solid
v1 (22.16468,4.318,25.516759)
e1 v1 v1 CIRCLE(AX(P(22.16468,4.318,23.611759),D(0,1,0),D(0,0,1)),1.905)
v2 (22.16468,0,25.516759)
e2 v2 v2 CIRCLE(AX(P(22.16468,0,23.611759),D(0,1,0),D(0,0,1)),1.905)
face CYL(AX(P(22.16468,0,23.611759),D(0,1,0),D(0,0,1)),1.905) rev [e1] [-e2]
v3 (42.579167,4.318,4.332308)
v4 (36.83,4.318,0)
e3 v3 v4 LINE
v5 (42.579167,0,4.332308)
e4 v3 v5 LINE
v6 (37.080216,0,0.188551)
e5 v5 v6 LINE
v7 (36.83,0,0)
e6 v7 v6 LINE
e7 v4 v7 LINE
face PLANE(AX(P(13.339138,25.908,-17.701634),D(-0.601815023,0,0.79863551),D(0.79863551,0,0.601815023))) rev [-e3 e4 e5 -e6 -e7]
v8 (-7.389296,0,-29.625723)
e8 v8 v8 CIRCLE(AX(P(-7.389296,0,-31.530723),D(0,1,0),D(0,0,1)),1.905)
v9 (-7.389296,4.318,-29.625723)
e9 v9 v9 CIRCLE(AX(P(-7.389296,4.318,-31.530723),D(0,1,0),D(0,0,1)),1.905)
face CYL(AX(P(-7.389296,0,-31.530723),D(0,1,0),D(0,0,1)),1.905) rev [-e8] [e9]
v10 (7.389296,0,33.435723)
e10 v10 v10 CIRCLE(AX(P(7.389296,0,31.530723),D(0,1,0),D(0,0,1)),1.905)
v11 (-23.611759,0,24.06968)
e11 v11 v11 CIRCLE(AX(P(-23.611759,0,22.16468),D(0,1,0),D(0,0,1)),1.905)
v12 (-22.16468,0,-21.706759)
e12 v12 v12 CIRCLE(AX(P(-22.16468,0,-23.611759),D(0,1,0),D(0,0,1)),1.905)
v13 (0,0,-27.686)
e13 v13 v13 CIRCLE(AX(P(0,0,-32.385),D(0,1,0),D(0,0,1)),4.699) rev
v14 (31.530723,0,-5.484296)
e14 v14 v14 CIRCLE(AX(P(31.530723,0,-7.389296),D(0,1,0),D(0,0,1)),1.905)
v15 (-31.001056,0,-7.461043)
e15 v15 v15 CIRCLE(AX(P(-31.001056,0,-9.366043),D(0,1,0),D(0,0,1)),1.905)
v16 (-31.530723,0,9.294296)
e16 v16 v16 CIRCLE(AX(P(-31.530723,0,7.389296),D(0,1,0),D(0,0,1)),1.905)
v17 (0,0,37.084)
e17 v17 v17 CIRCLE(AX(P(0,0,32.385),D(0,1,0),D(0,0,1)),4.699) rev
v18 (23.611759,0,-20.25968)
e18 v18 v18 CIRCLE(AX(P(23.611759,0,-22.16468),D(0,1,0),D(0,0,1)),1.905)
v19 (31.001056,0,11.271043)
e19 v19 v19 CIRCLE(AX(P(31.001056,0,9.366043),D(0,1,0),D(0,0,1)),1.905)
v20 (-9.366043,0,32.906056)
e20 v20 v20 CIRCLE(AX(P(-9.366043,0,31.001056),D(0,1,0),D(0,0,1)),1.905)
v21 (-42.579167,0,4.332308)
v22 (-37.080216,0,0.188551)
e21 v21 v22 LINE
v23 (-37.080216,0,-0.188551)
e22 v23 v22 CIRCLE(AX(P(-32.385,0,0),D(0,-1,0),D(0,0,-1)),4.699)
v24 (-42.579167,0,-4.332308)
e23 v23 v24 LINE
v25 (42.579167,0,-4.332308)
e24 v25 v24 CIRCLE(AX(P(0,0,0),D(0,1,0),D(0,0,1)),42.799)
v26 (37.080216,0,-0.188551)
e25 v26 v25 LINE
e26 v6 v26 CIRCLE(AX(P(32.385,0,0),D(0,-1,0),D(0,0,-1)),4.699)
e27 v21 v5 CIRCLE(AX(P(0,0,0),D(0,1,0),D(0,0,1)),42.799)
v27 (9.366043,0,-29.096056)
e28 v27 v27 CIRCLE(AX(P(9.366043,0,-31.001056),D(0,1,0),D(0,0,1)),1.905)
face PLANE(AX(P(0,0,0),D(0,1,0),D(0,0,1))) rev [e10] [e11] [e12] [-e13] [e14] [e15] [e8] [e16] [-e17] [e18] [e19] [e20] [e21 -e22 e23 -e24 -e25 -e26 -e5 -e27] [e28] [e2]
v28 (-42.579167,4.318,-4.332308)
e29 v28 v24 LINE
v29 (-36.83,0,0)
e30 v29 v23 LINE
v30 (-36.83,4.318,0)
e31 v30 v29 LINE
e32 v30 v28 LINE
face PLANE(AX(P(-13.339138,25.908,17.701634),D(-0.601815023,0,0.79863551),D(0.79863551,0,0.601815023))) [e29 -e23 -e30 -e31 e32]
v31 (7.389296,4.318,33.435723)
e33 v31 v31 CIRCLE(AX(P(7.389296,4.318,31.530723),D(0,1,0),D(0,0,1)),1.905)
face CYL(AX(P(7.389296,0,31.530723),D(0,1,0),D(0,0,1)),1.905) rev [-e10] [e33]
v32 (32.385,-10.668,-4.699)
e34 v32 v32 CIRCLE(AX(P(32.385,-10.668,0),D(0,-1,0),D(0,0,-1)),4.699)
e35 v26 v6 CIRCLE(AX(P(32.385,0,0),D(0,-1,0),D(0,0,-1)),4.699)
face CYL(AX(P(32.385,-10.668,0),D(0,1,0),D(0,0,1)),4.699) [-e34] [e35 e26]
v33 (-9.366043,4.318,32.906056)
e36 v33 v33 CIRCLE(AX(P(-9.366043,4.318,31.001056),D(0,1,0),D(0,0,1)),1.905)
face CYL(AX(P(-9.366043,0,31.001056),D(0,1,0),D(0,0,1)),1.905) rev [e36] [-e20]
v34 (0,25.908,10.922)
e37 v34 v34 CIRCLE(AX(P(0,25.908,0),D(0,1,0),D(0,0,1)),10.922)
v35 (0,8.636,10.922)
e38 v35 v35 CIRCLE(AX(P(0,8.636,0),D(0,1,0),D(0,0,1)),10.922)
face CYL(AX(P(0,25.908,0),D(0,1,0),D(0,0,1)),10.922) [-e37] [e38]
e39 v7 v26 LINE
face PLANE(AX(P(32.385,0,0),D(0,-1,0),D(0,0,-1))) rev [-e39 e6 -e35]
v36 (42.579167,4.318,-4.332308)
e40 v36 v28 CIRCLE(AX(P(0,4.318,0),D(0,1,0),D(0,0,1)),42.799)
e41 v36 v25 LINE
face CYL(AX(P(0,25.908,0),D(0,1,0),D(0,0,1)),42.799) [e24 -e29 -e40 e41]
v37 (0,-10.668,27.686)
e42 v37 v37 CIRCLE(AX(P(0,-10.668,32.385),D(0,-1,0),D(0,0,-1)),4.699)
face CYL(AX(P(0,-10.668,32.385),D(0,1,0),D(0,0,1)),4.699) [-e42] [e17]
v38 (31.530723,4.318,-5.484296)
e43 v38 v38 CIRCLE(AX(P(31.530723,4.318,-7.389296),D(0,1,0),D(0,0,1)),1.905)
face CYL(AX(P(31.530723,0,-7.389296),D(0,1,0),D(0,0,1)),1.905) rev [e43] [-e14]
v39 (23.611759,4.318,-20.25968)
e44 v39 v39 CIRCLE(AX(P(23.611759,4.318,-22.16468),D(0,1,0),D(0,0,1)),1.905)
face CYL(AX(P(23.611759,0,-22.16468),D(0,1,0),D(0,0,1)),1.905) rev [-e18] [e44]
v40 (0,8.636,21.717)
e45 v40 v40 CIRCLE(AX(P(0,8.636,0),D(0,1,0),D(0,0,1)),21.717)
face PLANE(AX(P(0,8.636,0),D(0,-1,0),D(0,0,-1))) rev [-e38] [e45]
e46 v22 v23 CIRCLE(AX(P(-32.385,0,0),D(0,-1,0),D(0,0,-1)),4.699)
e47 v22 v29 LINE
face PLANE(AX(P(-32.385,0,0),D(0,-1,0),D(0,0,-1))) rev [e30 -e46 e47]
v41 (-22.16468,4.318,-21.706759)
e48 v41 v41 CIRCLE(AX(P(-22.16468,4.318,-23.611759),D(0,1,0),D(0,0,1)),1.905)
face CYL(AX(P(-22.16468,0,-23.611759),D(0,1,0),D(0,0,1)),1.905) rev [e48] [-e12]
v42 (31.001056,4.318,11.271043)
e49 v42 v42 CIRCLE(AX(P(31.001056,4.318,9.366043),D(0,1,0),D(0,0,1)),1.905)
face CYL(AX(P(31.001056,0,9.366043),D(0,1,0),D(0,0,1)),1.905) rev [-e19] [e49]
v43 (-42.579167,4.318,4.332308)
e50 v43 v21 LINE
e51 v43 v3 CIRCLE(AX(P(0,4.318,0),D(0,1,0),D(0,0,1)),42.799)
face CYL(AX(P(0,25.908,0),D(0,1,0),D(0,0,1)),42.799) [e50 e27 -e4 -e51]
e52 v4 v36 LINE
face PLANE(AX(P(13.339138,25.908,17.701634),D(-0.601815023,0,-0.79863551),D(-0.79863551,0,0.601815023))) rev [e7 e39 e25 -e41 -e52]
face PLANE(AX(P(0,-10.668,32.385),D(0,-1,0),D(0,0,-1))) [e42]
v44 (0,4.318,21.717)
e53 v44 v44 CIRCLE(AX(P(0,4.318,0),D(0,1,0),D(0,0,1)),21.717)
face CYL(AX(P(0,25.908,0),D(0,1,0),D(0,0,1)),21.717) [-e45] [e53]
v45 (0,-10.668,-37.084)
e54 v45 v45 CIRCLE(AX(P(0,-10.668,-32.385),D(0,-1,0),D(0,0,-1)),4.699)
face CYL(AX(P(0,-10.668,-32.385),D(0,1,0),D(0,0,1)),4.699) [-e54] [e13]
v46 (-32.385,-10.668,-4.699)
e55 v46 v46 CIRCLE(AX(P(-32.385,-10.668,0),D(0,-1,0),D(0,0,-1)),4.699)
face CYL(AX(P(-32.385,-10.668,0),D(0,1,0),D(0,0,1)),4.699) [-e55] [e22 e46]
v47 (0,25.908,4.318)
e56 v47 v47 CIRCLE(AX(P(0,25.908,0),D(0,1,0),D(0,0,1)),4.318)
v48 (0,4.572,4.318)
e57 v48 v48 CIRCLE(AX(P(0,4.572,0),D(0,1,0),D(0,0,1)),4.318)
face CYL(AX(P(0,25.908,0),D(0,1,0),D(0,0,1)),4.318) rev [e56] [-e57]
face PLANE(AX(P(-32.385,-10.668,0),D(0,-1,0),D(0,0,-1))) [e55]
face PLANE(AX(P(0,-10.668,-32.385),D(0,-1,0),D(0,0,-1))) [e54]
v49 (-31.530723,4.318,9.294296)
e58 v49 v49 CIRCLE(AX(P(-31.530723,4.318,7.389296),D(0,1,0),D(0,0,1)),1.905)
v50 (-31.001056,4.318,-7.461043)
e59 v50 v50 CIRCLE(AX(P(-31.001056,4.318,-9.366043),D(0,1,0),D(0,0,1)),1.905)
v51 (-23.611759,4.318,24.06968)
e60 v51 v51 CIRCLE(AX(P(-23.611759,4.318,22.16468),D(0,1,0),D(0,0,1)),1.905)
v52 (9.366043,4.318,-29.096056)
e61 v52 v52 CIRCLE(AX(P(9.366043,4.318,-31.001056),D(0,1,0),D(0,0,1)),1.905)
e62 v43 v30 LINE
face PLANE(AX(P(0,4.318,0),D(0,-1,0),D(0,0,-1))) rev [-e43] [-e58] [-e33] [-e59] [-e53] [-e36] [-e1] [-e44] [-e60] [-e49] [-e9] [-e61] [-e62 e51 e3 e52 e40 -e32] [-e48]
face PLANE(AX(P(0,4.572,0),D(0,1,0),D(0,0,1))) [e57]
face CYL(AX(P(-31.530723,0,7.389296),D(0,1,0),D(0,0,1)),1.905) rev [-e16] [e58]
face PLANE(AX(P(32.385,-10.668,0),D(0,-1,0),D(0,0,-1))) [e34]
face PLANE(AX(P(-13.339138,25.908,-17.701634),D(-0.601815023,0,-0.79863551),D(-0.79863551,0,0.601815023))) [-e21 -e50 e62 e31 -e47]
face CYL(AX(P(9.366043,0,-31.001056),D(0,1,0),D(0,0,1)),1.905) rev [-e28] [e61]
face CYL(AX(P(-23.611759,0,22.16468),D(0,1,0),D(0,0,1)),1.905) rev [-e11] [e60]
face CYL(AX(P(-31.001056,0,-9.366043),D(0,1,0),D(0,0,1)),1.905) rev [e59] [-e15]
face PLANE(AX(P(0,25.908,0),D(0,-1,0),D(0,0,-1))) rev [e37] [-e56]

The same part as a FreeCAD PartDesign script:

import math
import FreeCAD as App
import Part
import Sketcher

V = App.Vector
Q = App.Units.Quantity


def add_polygon(sketch, points):
    """Adds a closed chain of lines whose ends are joined by coincident constraints."""
    first, n = sketch.GeometryCount, len(points)
    for a, b in zip(points, points[1:] + points[:1]):
        sketch.addGeometry(Part.LineSegment(App.Vector(*a, 0), App.Vector(*b, 0)), False)
    for i in range(n):
        sketch.addConstraint(Sketcher.Constraint("Coincident", first + i, 2, first + (i + 1) % n, 1))

doc = App.newDocument("Part")
params = doc.addObject("Spreadsheet::Sheet", "Params")
for row, (alias, value) in enumerate([
    ("sketch1_width", "0.17 in"),
    ("sketch1_width2", "0.26 in"),
    ("sketch1_width3", "0.83 in"),
    ("sketch1_height", "0.18 in"),
    ("sketch1_height2", "0.84 in"),
    ("revolution_angle", "360 deg"),
    ("sketch2_diameter", "0.15 in"),
    ("pocket1_length", "0.17 in"),
    ("sketch3_radius", "1.685 in"),
    ("sketch4_diameter", "0.37 in"),
    ("pad1_length", "0.42 in"),
], start=1):
    params.set(f"A{row}", alias)
    params.set(f"B{row}", "=" + value)
    params.setAlias(f"B{row}", alias)

body = doc.addObject("PartDesign::Body", "Body")

# Sketch on XY plane
sketch1 = body.newObject("Sketcher::SketchObject", "Sketch")
sketch1.AttachmentSupport = (doc.getObject("XY_Plane"), [""])
sketch1.MapMode = "FlatFace"
add_polygon(sketch1, [(-42.8, 0), (0, 0), (0, 4.6), (-4.3, 4.6), (-4.3, 25.9), (-10.9, 25.9), (-10.9, 8.6), (-21.7, 8.6), (-21.7, 4.3), (-42.8, 4.3)])  # lines 0-9
sketch1.addConstraint(Sketcher.Constraint("Horizontal", 0))
sketch1.addConstraint(Sketcher.Constraint("Vertical", 1))
sketch1.addConstraint(Sketcher.Constraint("Horizontal", 2))
sketch1.addConstraint(Sketcher.Constraint("Vertical", 3))
sketch1.addConstraint(Sketcher.Constraint("Horizontal", 4))
sketch1.addConstraint(Sketcher.Constraint("Vertical", 5))
sketch1.addConstraint(Sketcher.Constraint("Horizontal", 6))
sketch1.addConstraint(Sketcher.Constraint("Vertical", 7))
sketch1.addConstraint(Sketcher.Constraint("Horizontal", 8))
sketch1.addConstraint(Sketcher.Constraint("Vertical", 9))
sketch1.addConstraint(Sketcher.Constraint("Coincident", 0, 2, -1, 1))
sketch1.addConstraint(Sketcher.Constraint("Equal", 2, 7))
sketch1.addConstraint(Sketcher.Constraint("Equal", 7, 9))
sketch1.addConstraint(Sketcher.Constraint("DistanceX", 2, 2, 2, 1, Q("0.17 in")))
sketch1.addConstraint(Sketcher.Constraint("DistanceX", 4, 2, 4, 1, Q("0.26 in")))
sketch1.addConstraint(Sketcher.Constraint("DistanceX", 8, 2, 8, 1, Q("0.83 in")))
sketch1.addConstraint(Sketcher.Constraint("DistanceY", 1, 1, 1, 2, Q("0.18 in")))
sketch1.addConstraint(Sketcher.Constraint("DistanceY", 3, 1, 3, 2, Q("0.84 in")))
sketch1.addConstraint(Sketcher.Constraint("DistanceX", 0, 1, 0, 2, Q("1.685 in")))
sketch1.setExpression("Constraints[23]", "Params.sketch1_width")
sketch1.setExpression("Constraints[24]", "Params.sketch1_width2")
sketch1.setExpression("Constraints[25]", "Params.sketch1_width3")
sketch1.setExpression("Constraints[26]", "Params.sketch1_height")
sketch1.setExpression("Constraints[27]", "Params.sketch1_height2")
revolution = body.newObject("PartDesign::Revolution", "Revolution")
revolution.Profile = sketch1
revolution.ReferenceAxis = (sketch1, ["V_Axis"])
revolution.setExpression("Angle", "Params.revolution_angle")

# Sketch on XZ plane
sketch2 = body.newObject("Sketcher::SketchObject", "Sketch001")
sketch2.AttachmentSupport = (doc.getObject("XZ_Plane"), [""])
sketch2.MapMode = "FlatFace"
sketch2.AttachmentOffset = App.Placement(V(0, 0, -0.17 * 25.4), App.Rotation())
sketch2.addGeometry(Part.Circle(V(-31, -9.4, 0), V(0, 0, 1), 1.9), False)
sketch2.addGeometry(Part.Circle(V(-22.2, -23.6, 0), V(0, 0, 1), 1.9), False)
sketch2.addGeometry(Part.Circle(V(-7.4, -31.5, 0), V(0, 0, 1), 1.9), False)
sketch2.addGeometry(Part.Circle(V(9.4, -31, 0), V(0, 0, 1), 1.9), False)
sketch2.addGeometry(Part.Circle(V(23.6, -22.2, 0), V(0, 0, 1), 1.9), False)
sketch2.addGeometry(Part.Circle(V(31.5, -7.4, 0), V(0, 0, 1), 1.9), False)
sketch2.addGeometry(Part.Circle(V(31, 9.4, 0), V(0, 0, 1), 1.9), False)
sketch2.addGeometry(Part.Circle(V(22.2, 23.6, 0), V(0, 0, 1), 1.9), False)
sketch2.addGeometry(Part.Circle(V(7.4, 31.5, 0), V(0, 0, 1), 1.9), False)
sketch2.addGeometry(Part.Circle(V(-9.4, 31, 0), V(0, 0, 1), 1.9), False)
sketch2.addGeometry(Part.Circle(V(-23.6, 22.2, 0), V(0, 0, 1), 1.9), False)
sketch2.addGeometry(Part.Circle(V(-31.5, 7.4, 0), V(0, 0, 1), 1.9), False)
sketch2.addConstraint(Sketcher.Constraint("Equal", 0, 1))
sketch2.addConstraint(Sketcher.Constraint("Equal", 1, 2))
sketch2.addConstraint(Sketcher.Constraint("Equal", 2, 3))
sketch2.addConstraint(Sketcher.Constraint("Equal", 3, 4))
sketch2.addConstraint(Sketcher.Constraint("Equal", 4, 5))
sketch2.addConstraint(Sketcher.Constraint("Equal", 5, 6))
sketch2.addConstraint(Sketcher.Constraint("Equal", 6, 7))
sketch2.addConstraint(Sketcher.Constraint("Equal", 7, 8))
sketch2.addConstraint(Sketcher.Constraint("Equal", 8, 9))
sketch2.addConstraint(Sketcher.Constraint("Equal", 9, 10))
sketch2.addConstraint(Sketcher.Constraint("Equal", 10, 11))
sketch2.addConstraint(Sketcher.Constraint("Symmetric", 0, 3, 6, 3, -1, 1))
sketch2.addConstraint(Sketcher.Constraint("Symmetric", 1, 3, 7, 3, -1, 1))
sketch2.addConstraint(Sketcher.Constraint("Symmetric", 2, 3, 8, 3, -1, 1))
sketch2.addConstraint(Sketcher.Constraint("Symmetric", 3, 3, 9, 3, -1, 1))
sketch2.addConstraint(Sketcher.Constraint("Symmetric", 4, 3, 10, 3, -1, 1))
sketch2.addConstraint(Sketcher.Constraint("Symmetric", 5, 3, 11, 3, -1, 1))
sketch2.addConstraint(Sketcher.Constraint("Diameter", 0, Q("0.15 in")))
sketch2.addConstraint(Sketcher.Constraint("DistanceX", 0, 3, 3, 3, 40.367099))
sketch2.addConstraint(Sketcher.Constraint("DistanceY", 3, 3, 6, 3, 40.367099))
sketch2.addConstraint(Sketcher.Constraint("DistanceX", 1, 3, -1, 1, 22.16468))
sketch2.addConstraint(Sketcher.Constraint("DistanceY", 1, 3, -1, 1, 23.611759))
sketch2.addConstraint(Sketcher.Constraint("DistanceX", -1, 1, 4, 3, 23.611759))
sketch2.addConstraint(Sketcher.Constraint("DistanceY", 4, 3, -1, 1, 22.16468))
sketch2.addConstraint(Sketcher.Constraint("DistanceX", 0, 3, 2, 3, 23.611759))
sketch2.addConstraint(Sketcher.Constraint("DistanceY", 2, 3, 0, 3, 22.16468))
sketch2.addConstraint(Sketcher.Constraint("DistanceX", 3, 3, 5, 3, 22.16468))
sketch2.addConstraint(Sketcher.Constraint("DistanceY", 3, 3, 5, 3, 23.611759))
sketch2.addConstraint(Sketcher.Constraint("DistanceX", 0, 3, -1, 1, 31.001056))
sketch2.addConstraint(Sketcher.Constraint("DistanceY", 0, 3, -1, 1, 9.366043))
sketch2.setExpression("Constraints[17]", "Params.sketch2_diameter")
pocket1 = body.newObject("PartDesign::Pocket", "Pocket")
pocket1.Profile = sketch2
pocket1.setExpression("Length", "Params.pocket1_length")
pocket1.Reversed = True

# Sketch on XZ plane
sketch3 = body.newObject("Sketcher::SketchObject", "Sketch002")
sketch3.AttachmentSupport = (doc.getObject("XZ_Plane"), [""])
sketch3.MapMode = "FlatFace"
sketch3.addGeometry(Part.ArcOfCircle(Part.Circle(V(0, 0, 0), V(0, 0, 1), 42.8), math.radians(0), math.radians(5.81)), False)
sketch3.addGeometry(Part.LineSegment(V(42.6, 4.3, 0), V(36.8, 0, 0)), False)
sketch3.addGeometry(Part.LineSegment(V(36.8, 0, 0), V(42.6, -4.3, 0)), False)
sketch3.addGeometry(Part.ArcOfCircle(Part.Circle(V(0, 0, 0), V(0, 0, 1), 42.8), math.radians(-5.81), math.radians(0)), False)
sketch3.addGeometry(Part.LineSegment(V(-36.8, 0, 0), V(-42.6, 4.3, 0)), False)
sketch3.addGeometry(Part.ArcOfCircle(Part.Circle(V(0, 0, 0), V(0, 0, 1), 42.8), math.radians(174.19), math.radians(185.81)), False)
sketch3.addGeometry(Part.LineSegment(V(-42.6, -4.3, 0), V(-36.8, 0, 0)), False)
sketch3.addConstraint(Sketcher.Constraint("Coincident", 0, 2, 1, 1))
sketch3.addConstraint(Sketcher.Constraint("Coincident", 1, 2, 2, 1))
sketch3.addConstraint(Sketcher.Constraint("Coincident", 2, 2, 3, 1))
sketch3.addConstraint(Sketcher.Constraint("Tangent", 3, 2, 0, 1))
sketch3.addConstraint(Sketcher.Constraint("Coincident", 4, 2, 5, 1))
sketch3.addConstraint(Sketcher.Constraint("Coincident", 5, 2, 6, 1))
sketch3.addConstraint(Sketcher.Constraint("Coincident", 6, 2, 4, 1))
sketch3.addConstraint(Sketcher.Constraint("Coincident", 0, 3, -1, 1))
sketch3.addConstraint(Sketcher.Constraint("Coincident", 5, 3, -1, 1))
sketch3.addConstraint(Sketcher.Constraint("Equal", 0, 3))
sketch3.addConstraint(Sketcher.Constraint("Equal", 3, 5))
sketch3.addConstraint(Sketcher.Constraint("Symmetric", 1, 2, 6, 2, -1, 1))
sketch3.addConstraint(Sketcher.Constraint("PointOnObject", 1, 2, -1))
sketch3.addConstraint(Sketcher.Constraint("PointOnObject", 3, 2, -1))
sketch3.addConstraint(Sketcher.Constraint("Parallel", 2, 4))
sketch3.addConstraint(Sketcher.Constraint("Parallel", 1, 6))
sketch3.addConstraint(Sketcher.Constraint("Horizontal", 0, 2, 4, 2))
sketch3.addConstraint(Sketcher.Constraint("Angle", 1, Q("-143 deg")))
sketch3.addConstraint(Sketcher.Constraint("Radius", 0, Q("1.685 in")))
sketch3.addConstraint(Sketcher.Constraint("DistanceX", -1, 1, 1, 2, Q("1.45 in")))
sketch3.setExpression("Constraints[18]", "Params.sketch3_radius")
pocket2 = body.newObject("PartDesign::Pocket", "Pocket001")
pocket2.Profile = sketch3
pocket2.Type = "ThroughAll"

# Sketch on XZ plane
sketch4 = body.newObject("Sketcher::SketchObject", "Sketch003")
sketch4.AttachmentSupport = (doc.getObject("XZ_Plane"), [""])
sketch4.MapMode = "FlatFace"
sketch4.addGeometry(Part.Circle(V(0, 32.4, 0), V(0, 0, 1), 4.7), False)
sketch4.addGeometry(Part.Circle(V(32.4, 0, 0), V(0, 0, 1), 4.7), False)
sketch4.addGeometry(Part.Circle(V(0, -32.4, 0), V(0, 0, 1), 4.7), False)
sketch4.addGeometry(Part.Circle(V(-32.4, 0, 0), V(0, 0, 1), 4.7), False)
sketch4.addConstraint(Sketcher.Constraint("Equal", 0, 1))
sketch4.addConstraint(Sketcher.Constraint("Equal", 1, 2))
sketch4.addConstraint(Sketcher.Constraint("Equal", 2, 3))
sketch4.addConstraint(Sketcher.Constraint("Symmetric", 0, 3, 2, 3, -1, 1))
sketch4.addConstraint(Sketcher.Constraint("Symmetric", 1, 3, 3, 3, -1, 1))
sketch4.addConstraint(Sketcher.Constraint("PointOnObject", 0, 3, -2))
sketch4.addConstraint(Sketcher.Constraint("PointOnObject", 1, 3, -1))
sketch4.addConstraint(Sketcher.Constraint("Diameter", 0, Q("0.37 in")))
sketch4.addConstraint(Sketcher.Constraint("DistanceY", 2, 3, 0, 3, Q("2.55 in")))
sketch4.addConstraint(Sketcher.Constraint("DistanceX", 3, 3, 1, 3, Q("2.55 in")))
sketch4.setExpression("Constraints[7]", "Params.sketch4_diameter")
pad1 = body.newObject("PartDesign::Pad", "Pad")
pad1.Profile = sketch4
pad1.setExpression("Length", "Params.pad1_length")

doc.recompute()
